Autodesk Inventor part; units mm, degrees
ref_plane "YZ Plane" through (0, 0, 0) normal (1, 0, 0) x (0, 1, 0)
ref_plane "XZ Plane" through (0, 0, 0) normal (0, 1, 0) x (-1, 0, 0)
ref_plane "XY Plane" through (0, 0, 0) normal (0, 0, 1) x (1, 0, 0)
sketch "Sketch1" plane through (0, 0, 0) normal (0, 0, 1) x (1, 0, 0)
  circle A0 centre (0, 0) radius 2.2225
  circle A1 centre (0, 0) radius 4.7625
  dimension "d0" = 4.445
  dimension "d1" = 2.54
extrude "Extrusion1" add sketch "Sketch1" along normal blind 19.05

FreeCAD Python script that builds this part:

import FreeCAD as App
import Part
import Sketcher
Q = App.Units.Quantity

doc = App.newDocument("Part")
body = doc.addObject("PartDesign::Body", "Body")

sketch1 = doc.addObject("Sketcher::SketchObject", "Sketch")
body.addObject(sketch1)
sketch1.AttachmentSupport = (doc.XY_Plane, [""])
sketch1.MapMode = "FlatFace"
sketch1.addGeometry([
    Part.Circle(App.Vector(0, 0, 0), App.Vector(0, 0, 1), 4.8),
    Part.Circle(App.Vector(0, 0, 0), App.Vector(0, 0, 1), 2.2),
], False)
sketch1.addConstraint([
    Sketcher.Constraint("Coincident", 0, 3, -1, 1),
    Sketcher.Constraint("Coincident", 1, 3, -1, 1),
    Sketcher.Constraint("Diameter", 1, Q("0.175 in")),
    Sketcher.Constraint("Diameter", 0, Q("0.375 in")),
])
pad1 = doc.addObject("PartDesign::Pad", "Pad")
body.addObject(pad1)
pad1.Profile = sketch1
pad1.Length = Q("0.75 in")

doc.recompute()
